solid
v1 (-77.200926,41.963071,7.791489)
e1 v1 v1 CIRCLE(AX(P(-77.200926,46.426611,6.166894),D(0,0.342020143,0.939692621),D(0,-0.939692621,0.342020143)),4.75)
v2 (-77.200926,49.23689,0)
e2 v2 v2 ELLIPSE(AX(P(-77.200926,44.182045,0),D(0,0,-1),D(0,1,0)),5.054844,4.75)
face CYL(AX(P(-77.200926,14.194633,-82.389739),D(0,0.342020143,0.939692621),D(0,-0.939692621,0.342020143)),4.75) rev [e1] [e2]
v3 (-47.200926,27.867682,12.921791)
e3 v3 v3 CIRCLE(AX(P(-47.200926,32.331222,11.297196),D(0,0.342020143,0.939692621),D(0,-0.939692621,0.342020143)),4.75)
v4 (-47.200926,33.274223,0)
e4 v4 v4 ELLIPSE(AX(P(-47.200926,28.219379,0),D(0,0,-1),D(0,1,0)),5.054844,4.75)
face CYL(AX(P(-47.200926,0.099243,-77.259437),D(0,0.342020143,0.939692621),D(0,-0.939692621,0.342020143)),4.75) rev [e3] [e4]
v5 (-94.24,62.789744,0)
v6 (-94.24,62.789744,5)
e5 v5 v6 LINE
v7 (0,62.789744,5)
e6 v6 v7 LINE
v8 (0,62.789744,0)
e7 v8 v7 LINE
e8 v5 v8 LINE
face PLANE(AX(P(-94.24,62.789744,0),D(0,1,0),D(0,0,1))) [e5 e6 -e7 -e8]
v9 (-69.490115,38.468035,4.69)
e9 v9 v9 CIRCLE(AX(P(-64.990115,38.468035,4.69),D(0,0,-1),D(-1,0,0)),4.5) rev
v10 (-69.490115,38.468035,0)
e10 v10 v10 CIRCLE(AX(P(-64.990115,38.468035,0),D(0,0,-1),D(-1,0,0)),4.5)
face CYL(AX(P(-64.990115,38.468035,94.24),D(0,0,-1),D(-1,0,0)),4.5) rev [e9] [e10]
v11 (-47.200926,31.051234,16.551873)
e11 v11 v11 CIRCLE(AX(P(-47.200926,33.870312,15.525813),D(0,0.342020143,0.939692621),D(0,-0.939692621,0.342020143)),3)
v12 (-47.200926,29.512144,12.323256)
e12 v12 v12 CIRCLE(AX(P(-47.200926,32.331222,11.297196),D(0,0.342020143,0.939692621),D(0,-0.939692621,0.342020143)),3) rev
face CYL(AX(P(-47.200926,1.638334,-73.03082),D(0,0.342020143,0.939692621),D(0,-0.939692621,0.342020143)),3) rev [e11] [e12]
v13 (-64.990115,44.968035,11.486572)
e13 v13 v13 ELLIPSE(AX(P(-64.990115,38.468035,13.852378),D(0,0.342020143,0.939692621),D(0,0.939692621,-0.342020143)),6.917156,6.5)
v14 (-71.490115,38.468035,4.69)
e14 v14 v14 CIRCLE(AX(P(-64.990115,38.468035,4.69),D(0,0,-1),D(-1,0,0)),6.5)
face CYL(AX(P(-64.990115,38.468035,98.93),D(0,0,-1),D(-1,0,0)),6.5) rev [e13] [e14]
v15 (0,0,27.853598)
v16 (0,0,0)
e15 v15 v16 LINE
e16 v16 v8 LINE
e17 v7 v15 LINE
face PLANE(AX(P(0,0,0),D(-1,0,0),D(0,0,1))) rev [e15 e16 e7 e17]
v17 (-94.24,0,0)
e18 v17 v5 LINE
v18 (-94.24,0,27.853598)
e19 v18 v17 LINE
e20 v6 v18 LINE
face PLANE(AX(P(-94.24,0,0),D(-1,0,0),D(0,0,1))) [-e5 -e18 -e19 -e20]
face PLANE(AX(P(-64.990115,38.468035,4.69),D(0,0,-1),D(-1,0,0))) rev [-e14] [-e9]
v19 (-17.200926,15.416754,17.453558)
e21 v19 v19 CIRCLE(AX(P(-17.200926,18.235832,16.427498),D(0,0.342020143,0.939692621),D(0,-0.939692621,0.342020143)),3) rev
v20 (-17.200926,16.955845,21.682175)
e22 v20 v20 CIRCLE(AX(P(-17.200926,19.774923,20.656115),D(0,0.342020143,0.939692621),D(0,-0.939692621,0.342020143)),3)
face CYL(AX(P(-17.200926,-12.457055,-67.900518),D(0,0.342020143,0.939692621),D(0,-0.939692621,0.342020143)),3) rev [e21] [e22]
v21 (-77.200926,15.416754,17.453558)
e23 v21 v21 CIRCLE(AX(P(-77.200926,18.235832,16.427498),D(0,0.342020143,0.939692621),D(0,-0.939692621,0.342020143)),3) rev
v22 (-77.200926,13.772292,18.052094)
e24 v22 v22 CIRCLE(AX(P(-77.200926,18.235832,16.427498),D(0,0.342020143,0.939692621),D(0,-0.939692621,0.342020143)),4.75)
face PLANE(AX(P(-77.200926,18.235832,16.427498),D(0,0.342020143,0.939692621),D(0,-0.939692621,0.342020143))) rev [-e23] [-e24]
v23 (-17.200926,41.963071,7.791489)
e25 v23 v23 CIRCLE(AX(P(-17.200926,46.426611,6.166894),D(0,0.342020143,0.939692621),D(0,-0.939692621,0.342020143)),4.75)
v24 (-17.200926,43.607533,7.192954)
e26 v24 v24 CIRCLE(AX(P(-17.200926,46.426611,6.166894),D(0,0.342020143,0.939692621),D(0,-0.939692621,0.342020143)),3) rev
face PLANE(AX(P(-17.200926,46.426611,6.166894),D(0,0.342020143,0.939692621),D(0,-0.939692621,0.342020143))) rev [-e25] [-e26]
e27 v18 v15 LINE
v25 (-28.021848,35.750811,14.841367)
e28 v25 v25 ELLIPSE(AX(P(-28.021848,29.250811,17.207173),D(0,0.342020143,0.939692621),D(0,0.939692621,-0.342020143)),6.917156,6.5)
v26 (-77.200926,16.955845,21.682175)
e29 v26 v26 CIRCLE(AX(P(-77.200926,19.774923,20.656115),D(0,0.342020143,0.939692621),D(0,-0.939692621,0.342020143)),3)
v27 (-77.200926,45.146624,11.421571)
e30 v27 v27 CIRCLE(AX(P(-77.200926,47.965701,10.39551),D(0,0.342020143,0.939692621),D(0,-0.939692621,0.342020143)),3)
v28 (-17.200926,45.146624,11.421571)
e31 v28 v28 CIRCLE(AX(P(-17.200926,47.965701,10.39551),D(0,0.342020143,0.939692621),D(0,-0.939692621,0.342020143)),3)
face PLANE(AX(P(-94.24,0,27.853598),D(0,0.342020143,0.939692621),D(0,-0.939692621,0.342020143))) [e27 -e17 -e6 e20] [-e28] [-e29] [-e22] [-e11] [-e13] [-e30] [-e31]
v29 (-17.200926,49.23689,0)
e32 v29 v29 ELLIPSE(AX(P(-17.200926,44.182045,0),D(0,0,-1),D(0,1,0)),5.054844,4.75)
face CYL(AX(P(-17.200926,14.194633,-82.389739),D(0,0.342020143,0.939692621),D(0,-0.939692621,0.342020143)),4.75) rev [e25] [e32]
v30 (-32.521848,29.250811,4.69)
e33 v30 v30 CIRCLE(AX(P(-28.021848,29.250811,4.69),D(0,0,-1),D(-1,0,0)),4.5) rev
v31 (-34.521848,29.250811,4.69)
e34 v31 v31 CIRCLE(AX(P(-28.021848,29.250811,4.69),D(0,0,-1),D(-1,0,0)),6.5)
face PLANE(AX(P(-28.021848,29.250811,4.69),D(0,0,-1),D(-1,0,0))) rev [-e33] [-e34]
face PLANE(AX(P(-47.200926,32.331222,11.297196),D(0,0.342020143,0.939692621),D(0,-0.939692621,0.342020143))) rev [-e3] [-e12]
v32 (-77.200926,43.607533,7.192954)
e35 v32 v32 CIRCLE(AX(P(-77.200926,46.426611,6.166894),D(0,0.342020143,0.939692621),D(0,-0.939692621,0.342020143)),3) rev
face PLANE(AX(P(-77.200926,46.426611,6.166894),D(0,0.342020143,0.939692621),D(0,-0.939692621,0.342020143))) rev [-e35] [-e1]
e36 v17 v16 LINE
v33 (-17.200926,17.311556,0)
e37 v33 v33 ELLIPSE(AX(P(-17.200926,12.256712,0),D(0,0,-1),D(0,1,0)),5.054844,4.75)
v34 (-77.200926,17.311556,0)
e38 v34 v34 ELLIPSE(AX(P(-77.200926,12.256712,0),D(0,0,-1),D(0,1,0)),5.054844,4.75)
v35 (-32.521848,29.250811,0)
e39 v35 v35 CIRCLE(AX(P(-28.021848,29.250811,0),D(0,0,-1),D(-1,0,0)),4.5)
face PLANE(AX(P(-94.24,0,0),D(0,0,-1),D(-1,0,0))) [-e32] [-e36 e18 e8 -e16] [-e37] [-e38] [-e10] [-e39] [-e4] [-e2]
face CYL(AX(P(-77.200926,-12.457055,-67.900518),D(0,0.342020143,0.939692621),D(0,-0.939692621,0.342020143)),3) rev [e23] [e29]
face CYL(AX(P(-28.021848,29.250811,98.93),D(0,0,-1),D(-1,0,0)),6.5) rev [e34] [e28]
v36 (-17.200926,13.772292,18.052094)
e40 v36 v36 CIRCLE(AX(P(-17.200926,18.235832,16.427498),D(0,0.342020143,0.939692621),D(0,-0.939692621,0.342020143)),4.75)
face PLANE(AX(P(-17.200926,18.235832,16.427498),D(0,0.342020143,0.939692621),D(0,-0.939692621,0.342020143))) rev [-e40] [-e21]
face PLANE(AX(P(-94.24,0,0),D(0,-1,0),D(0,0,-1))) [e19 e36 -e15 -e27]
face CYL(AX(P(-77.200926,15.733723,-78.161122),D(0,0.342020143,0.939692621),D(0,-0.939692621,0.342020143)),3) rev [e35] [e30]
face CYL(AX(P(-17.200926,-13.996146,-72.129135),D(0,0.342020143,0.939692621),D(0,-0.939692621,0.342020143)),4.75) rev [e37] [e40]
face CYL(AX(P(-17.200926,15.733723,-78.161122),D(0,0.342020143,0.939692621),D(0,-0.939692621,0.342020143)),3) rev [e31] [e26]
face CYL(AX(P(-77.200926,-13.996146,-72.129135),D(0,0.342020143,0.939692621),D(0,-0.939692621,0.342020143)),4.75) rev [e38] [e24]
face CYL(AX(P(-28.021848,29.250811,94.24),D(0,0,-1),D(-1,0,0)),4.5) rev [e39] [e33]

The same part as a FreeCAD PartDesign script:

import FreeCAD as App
import Part
import Sketcher

V = App.Vector
Q = App.Units.Quantity

doc = App.newDocument("Part")
body = doc.addObject("PartDesign::Body", "Body")

sketch1 = doc.addObject("Sketcher::SketchObject", "Sketch")
body.addObject(sketch1)
sketch1.AttachmentSupport = (doc.YZ_Plane, [""])
sketch1.MapMode = "FlatFace"
sketch1.addGeometry([
    Part.LineSegment(V(0, 0, 0), V(63, 0, 0)),
    Part.LineSegment(V(63, 0, 0), V(63, 5, 0)),
    Part.LineSegment(V(63, 5, 0), V(0, 28, 0)),
    Part.LineSegment(V(0, 28, 0), V(0, 0, 0)),
], False)
sketch1.addConstraint([
    Sketcher.Constraint("Coincident", 0, 2, 1, 1),
    Sketcher.Constraint("Coincident", 1, 2, 2, 1),
    Sketcher.Constraint("Coincident", 2, 2, 3, 1),
    Sketcher.Constraint("Coincident", 3, 2, 0, 1),
    Sketcher.Constraint("Horizontal", 0),
    Sketcher.Constraint("Vertical", 1),
    Sketcher.Constraint("Vertical", 3),
    Sketcher.Constraint("Coincident", 3, 2, -1, 1),
    Sketcher.Constraint("DistanceY", 1, 1, 1, 2, 5.0),
    Sketcher.Constraint("Angle", 2, Q("160 deg")),
    Sketcher.Constraint("Distance", 2, 66.81945),
])
pad1 = doc.addObject("PartDesign::Pad", "Pad")
body.addObject(pad1)
pad1.Profile = sketch1
pad1.Length = 94.24
pad1.Reversed = True

sketch2 = doc.addObject("Sketcher::SketchObject", "Sketch001")
body.addObject(sketch2)
sketch2.AttachmentSupport = (doc.XY_Plane, [""])
sketch2.MapMode = "FlatFace"
sketch2.addGeometry([
    Part.Circle(V(-28, 29.3, 0), V(0, 0, 1), 4.5),
    Part.Circle(V(-65, 38.5, 0), V(0, 0, 1), 4.5),
], False)
sketch2.addConstraint([
    Sketcher.Constraint("Equal", 0, 1),
    Sketcher.Constraint("Diameter", 0, 9.0),
    Sketcher.Constraint("DistanceY", -1, 1, 0, 3, 29.250811),
    Sketcher.Constraint("DistanceX", 0, 3, -1, 1, 28.021848),
    Sketcher.Constraint("DistanceX", 1, 3, -1, 1, 64.990115),
    Sketcher.Constraint("DistanceY", -1, 1, 1, 3, 38.468035),
])
pocket1 = doc.addObject("PartDesign::Pocket", "Pocket")
body.addObject(pocket1)
pocket1.Profile = sketch2
pocket1.Length = 94.24
pocket1.Reversed = True

sketch3 = doc.addObject("Sketcher::SketchObject", "Sketch002")
body.addObject(sketch3)
sketch3.AttachmentSupport = (doc.XY_Plane, [""])
sketch3.MapMode = "FlatFace"
sketch3.AttachmentOffset = App.Placement(V(0, 0, 4.69), App.Rotation())
sketch3.addGeometry([
    Part.Circle(V(-28, 29, 0), V(0, 0, 1), 6),
    Part.Circle(V(-65, 38, 0), V(0, 0, 1), 6),
], False)
sketch3.addConstraint([
    Sketcher.Constraint("Equal", 0, 1),
    Sketcher.Constraint("Diameter", 0, 13.0),
    Sketcher.Constraint("DistanceY", -1, 1, 0, 3, 29.250811),
    Sketcher.Constraint("DistanceX", 0, 3, -1, 1, 28.021848),
    Sketcher.Constraint("DistanceX", 1, 3, -1, 1, 64.990115),
    Sketcher.Constraint("DistanceY", -1, 1, 1, 3, 38.468035),
])
pocket2 = doc.addObject("PartDesign::Pocket", "Pocket001")
body.addObject(pocket2)
pocket2.Profile = sketch3
pocket2.Length = 94.24
pocket2.Reversed = True

sketch4 = doc.addObject("Sketcher::SketchObject", "Sketch003")
body.addObject(sketch4)
sketch4.Placement = App.Placement(V(0, 8.951974, 24.595346), App.Rotation(V(1, 0, 0), V(0, 0.939692621, -0.342020143), V(0, 0.342020143, 0.939692621), "ZXY"))
sketch4.addGeometry([
    Part.Circle(V(-17.2, 11.5, 0), V(0, 0, 1), 3),
    Part.Circle(V(-17.2, 41.5, 0), V(0, 0, 1), 3),
    Part.Circle(V(-47.2, 26.5, 0), V(0, 0, 1), 3),
    Part.Circle(V(-77.2, 41.5, 0), V(0, 0, 1), 3),
    Part.Circle(V(-77.2, 11.5, 0), V(0, 0, 1), 3),
], False)
sketch4.addConstraint([
    Sketcher.Constraint("Equal", 0, 1),
    Sketcher.Constraint("Equal", 1, 2),
    Sketcher.Constraint("Equal", 2, 3),
    Sketcher.Constraint("Equal", 3, 4),
    Sketcher.Constraint("Horizontal", 1, 3, 3, 3),
    Sketcher.Constraint("Horizontal", 0, 3, 4, 3),
    Sketcher.Constraint("Vertical", 0, 3, 1, 3),
    Sketcher.Constraint("Vertical", 3, 3, 4, 3),
    Sketcher.Constraint("Diameter", 0, 6.0),
    Sketcher.Constraint("DistanceY", 0, 3, 1, 3, 30.0),
    Sketcher.Constraint("DistanceX", 2, 3, 1, 3, 30.0),
    Sketcher.Constraint("DistanceY", 2, 3, 1, 3, 15.0),
    Sketcher.Constraint("DistanceX", 3, 3, 2, 3, 30.0),
    Sketcher.Constraint("DistanceY", -1, 1, 0, 3, 11.517542),
    Sketcher.Constraint("DistanceX", 0, 3, -1, 1, 17.200926),
])
pocket3 = doc.addObject("PartDesign::Pocket", "Pocket002")
body.addObject(pocket3)
pocket3.Profile = sketch4
pocket3.Length = 94.24

sketch5 = doc.addObject("Sketcher::SketchObject", "Sketch004")
body.addObject(sketch5)
sketch5.Placement = App.Placement(V(0, 7.412883, 20.366729), App.Rotation(V(1, 0, 0), V(0, 0.939692621, -0.342020143), V(0, 0.342020143, 0.939692621), "ZXY"))
sketch5.addGeometry([
    Part.Circle(V(-17.2, 11.5, 0), V(0, 0, 1), 4.8),
    Part.Circle(V(-17.2, 41.5, 0), V(0, 0, 1), 4.8),
    Part.Circle(V(-47.2, 26.5, 0), V(0, 0, 1), 4.8),
    Part.Circle(V(-77.2, 11.5, 0), V(0, 0, 1), 4.8),
    Part.Circle(V(-77.2, 41.5, 0), V(0, 0, 1), 4.8),
], False)
sketch5.addConstraint([
    Sketcher.Constraint("Equal", 0, 1),
    Sketcher.Constraint("Equal", 1, 2),
    Sketcher.Constraint("Equal", 2, 3),
    Sketcher.Constraint("Equal", 3, 4),
    Sketcher.Constraint("Horizontal", 0, 3, 3, 3),
    Sketcher.Constraint("Horizontal", 1, 3, 4, 3),
    Sketcher.Constraint("Vertical", 0, 3, 1, 3),
    Sketcher.Constraint("Vertical", 3, 3, 4, 3),
    Sketcher.Constraint("Diameter", 0, 9.5),
    Sketcher.Constraint("DistanceY", 0, 3, 1, 3, 30.0),
    Sketcher.Constraint("DistanceX", 2, 3, 1, 3, 30.0),
    Sketcher.Constraint("DistanceY", 2, 3, 1, 3, 15.0),
    Sketcher.Constraint("DistanceX", 3, 3, 2, 3, 30.0),
    Sketcher.Constraint("DistanceY", -1, 1, 0, 3, 11.517542),
    Sketcher.Constraint("DistanceX", 0, 3, -1, 1, 17.200926),
])
pocket4 = doc.addObject("PartDesign::Pocket", "Pocket003")
body.addObject(pocket4)
pocket4.Profile = sketch5
pocket4.Length = 94.24

doc.recompute()
